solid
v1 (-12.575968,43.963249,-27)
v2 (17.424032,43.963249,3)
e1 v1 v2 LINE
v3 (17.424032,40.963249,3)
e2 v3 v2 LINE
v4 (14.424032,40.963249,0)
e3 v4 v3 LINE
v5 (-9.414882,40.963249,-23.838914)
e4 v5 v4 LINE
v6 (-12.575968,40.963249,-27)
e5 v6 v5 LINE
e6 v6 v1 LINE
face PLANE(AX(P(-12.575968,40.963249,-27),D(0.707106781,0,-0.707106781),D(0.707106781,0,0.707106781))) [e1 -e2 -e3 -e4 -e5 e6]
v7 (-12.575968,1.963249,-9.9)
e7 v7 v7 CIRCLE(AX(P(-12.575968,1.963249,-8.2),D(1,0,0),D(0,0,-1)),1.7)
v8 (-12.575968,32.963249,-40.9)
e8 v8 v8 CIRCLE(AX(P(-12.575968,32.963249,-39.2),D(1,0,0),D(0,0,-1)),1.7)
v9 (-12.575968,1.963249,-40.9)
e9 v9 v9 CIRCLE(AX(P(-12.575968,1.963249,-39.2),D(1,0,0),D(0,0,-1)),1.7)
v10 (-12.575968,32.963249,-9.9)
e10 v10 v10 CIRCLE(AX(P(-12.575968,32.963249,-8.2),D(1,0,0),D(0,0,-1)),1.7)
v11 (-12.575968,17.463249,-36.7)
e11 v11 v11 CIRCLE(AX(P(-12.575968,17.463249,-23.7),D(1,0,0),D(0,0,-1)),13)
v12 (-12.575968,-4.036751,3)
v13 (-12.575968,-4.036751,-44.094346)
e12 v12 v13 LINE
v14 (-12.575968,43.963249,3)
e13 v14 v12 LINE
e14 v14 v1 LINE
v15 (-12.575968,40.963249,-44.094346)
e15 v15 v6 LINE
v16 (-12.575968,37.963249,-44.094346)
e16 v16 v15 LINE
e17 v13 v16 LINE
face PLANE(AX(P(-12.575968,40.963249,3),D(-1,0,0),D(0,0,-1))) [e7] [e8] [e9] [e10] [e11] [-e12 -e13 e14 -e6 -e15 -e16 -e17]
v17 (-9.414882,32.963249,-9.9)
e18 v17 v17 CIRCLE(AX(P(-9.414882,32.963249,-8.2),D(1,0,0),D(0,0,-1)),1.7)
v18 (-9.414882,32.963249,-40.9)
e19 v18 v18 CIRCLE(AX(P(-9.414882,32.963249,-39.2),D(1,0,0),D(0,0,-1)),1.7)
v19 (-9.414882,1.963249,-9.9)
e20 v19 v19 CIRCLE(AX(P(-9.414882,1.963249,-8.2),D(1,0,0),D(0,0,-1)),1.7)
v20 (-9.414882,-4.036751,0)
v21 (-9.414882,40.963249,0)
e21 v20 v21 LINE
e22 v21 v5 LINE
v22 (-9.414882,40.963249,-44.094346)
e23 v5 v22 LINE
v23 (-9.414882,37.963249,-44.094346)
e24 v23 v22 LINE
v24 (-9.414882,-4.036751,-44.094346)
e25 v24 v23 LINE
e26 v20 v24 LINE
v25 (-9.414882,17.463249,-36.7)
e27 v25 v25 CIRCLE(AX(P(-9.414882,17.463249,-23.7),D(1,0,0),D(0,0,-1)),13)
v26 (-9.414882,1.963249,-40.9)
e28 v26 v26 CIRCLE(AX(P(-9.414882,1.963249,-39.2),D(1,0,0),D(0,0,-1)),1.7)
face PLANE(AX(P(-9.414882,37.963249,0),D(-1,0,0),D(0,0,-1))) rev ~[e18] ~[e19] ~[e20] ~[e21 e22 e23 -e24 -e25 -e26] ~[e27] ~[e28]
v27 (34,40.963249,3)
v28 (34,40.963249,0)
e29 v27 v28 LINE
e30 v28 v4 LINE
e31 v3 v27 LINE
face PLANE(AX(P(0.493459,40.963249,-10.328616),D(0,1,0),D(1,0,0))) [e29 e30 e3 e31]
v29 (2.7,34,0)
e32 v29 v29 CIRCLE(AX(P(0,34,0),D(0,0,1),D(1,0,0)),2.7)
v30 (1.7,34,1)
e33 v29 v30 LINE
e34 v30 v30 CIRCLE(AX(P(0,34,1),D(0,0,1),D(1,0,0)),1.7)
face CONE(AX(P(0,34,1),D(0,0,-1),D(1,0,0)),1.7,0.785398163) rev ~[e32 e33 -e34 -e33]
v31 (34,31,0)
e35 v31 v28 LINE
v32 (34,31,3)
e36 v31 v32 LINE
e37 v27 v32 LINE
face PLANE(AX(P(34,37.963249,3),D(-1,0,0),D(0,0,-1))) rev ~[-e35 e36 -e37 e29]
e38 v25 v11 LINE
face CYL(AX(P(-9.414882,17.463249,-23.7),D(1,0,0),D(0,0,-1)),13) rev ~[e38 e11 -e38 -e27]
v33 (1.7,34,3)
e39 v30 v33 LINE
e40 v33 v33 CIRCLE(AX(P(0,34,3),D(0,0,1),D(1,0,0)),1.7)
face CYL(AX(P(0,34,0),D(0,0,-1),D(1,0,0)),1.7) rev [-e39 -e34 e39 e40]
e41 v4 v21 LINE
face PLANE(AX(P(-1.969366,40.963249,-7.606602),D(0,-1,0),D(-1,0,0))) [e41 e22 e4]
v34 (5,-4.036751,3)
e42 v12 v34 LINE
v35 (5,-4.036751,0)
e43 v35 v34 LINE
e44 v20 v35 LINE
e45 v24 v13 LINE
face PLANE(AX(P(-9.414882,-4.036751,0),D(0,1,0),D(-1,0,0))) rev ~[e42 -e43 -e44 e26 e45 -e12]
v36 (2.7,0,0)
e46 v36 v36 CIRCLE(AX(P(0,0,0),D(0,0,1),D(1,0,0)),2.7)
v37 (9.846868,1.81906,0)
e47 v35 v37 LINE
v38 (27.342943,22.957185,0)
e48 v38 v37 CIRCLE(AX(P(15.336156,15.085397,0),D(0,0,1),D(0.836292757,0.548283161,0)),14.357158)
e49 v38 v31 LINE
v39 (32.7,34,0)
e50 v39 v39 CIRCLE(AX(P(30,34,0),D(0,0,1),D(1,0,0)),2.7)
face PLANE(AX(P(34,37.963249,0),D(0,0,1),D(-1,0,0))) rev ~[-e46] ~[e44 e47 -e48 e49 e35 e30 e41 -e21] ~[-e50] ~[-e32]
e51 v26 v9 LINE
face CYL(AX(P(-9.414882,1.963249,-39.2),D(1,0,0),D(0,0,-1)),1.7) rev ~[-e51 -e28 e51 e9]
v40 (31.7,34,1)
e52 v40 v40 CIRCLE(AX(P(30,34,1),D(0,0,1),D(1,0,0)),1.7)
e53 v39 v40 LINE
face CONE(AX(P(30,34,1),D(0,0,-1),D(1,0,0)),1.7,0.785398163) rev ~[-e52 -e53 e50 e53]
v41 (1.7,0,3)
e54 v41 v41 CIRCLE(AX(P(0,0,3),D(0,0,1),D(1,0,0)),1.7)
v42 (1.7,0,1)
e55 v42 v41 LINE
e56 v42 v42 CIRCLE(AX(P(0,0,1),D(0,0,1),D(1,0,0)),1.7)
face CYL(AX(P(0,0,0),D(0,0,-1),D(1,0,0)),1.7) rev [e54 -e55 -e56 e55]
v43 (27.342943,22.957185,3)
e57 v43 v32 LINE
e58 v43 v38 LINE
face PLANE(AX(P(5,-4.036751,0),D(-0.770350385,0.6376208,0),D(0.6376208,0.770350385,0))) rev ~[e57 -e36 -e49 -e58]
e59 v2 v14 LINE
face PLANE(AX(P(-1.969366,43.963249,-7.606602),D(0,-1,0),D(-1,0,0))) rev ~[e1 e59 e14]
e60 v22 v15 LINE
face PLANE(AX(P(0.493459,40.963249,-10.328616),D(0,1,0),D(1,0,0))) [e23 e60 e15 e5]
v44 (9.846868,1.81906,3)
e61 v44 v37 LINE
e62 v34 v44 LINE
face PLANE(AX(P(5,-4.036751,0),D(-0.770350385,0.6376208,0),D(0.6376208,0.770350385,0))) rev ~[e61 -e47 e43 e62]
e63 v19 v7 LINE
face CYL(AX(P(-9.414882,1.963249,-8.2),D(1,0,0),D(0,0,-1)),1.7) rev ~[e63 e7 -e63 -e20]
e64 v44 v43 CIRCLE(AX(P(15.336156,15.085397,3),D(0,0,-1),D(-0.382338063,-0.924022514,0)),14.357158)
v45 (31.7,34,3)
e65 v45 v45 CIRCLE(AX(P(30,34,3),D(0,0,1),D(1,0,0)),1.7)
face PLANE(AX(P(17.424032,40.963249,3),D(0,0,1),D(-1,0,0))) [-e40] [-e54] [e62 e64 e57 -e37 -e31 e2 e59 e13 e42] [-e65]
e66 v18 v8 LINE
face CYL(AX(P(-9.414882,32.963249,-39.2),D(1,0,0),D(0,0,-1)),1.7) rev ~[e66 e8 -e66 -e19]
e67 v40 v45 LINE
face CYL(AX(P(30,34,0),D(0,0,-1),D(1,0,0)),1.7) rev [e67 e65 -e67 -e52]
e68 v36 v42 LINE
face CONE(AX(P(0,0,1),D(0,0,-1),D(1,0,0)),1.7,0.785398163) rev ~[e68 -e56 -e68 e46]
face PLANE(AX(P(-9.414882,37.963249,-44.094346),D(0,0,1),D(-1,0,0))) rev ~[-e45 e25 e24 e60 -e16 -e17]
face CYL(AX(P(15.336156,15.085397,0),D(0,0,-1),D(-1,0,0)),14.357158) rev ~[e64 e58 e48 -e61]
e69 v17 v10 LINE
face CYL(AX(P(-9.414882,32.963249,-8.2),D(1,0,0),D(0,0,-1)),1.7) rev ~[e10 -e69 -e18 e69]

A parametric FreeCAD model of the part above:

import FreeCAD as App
import Part
import Sketcher


def edges_at(feature, points):
    """Names of the edges that pass closest to the given points."""
    edges = feature.Shape.Edges
    near = lambda p: min(range(len(edges)), key=lambda i: edges[i].distToShape(Part.Vertex(*p))[0])
    return sorted({f"Edge{near(p) + 1}" for p in points})


def add_polygon(sketch, points):
    """Adds a closed chain of lines whose ends are joined by coincident constraints."""
    first, n = sketch.GeometryCount, len(points)
    for a, b in zip(points, points[1:] + points[:1]):
        sketch.addGeometry(Part.LineSegment(App.Vector(*a, 0), App.Vector(*b, 0)), False)
    for i in range(n):
        sketch.addConstraint(Sketcher.Constraint("Coincident", first + i, 2, first + (i + 1) % n, 1))

doc = App.newDocument("Part")
body = doc.addObject("PartDesign::Body", "Body")

sketch1 = body.newObject("Sketcher::SketchObject", "Sketch")
sketch1.AttachmentSupport = (doc.getObject("XY_Plane"), [""])
sketch1.MapMode = "FlatFace"
add_polygon(sketch1, [(34, 31), (34, 38), (-12.6, 38), (-12.6, -4), (5, -4)])
sketch1.addGeometry(Part.Circle(App.Vector(0, 0, 0), App.Vector(0, 0, 1), 1.7), False)
sketch1.addGeometry(Part.Circle(App.Vector(0, 34, 0), App.Vector(0, 0, 1), 1.7), False)
sketch1.addGeometry(Part.Circle(App.Vector(30, 34, 0), App.Vector(0, 0, 1), 1.7), False)
sketch1.addConstraint(Sketcher.Constraint("Vertical", 0))
sketch1.addConstraint(Sketcher.Constraint("Horizontal", 1))
sketch1.addConstraint(Sketcher.Constraint("Vertical", 2))
sketch1.addConstraint(Sketcher.Constraint("Horizontal", 3))
sketch1.addConstraint(Sketcher.Constraint("Coincident", 5, 3, -1, 1))
sketch1.addConstraint(Sketcher.Constraint("Equal", 5, 6))
sketch1.addConstraint(Sketcher.Constraint("Equal", 6, 7))
sketch1.addConstraint(Sketcher.Constraint("PointOnObject", 6, 3, -2))
sketch1.addConstraint(Sketcher.Constraint("Horizontal", 6, 3, 7, 3))
sketch1.addConstraint(Sketcher.Constraint("Diameter", 5, 3.4))
sketch1.addConstraint(Sketcher.Constraint("DistanceY", 2, 2, 2, 1, 42.0))
sketch1.addConstraint(Sketcher.Constraint("DistanceY", -1, 1, 6, 3, 34.0))
sketch1.addConstraint(Sketcher.Constraint("DistanceX", -1, 1, 7, 3, 30.0))
sketch1.addConstraint(Sketcher.Constraint("DistanceX", -1, 1, 0, 2, 34.0))
sketch1.addConstraint(Sketcher.Constraint("DistanceX", -1, 1, 3, 2, 5.0))
sketch1.addConstraint(Sketcher.Constraint("DistanceY", -1, 1, 4, 2, 31.0))
sketch1.addConstraint(Sketcher.Constraint("DistanceX", 1, 2, 1, 1, 46.575968))
sketch1.addConstraint(Sketcher.Constraint("DistanceY", 0, 1, 0, 2, 6.963249))
pad1 = body.newObject("PartDesign::Pad", "Pad")
pad1.Profile = sketch1
pad1.Length = 3

sketch2 = body.newObject("Sketcher::SketchObject", "Sketch001")
sketch2.AttachmentSupport = (doc.getObject("XY_Plane"), [""])
sketch2.MapMode = "FlatFace"
add_polygon(sketch2, [(-9.4, 38), (-9.4, -4), (-12.6, -4), (-12.6, 38)])
sketch2.addConstraint(Sketcher.Constraint("Vertical", 0))
sketch2.addConstraint(Sketcher.Constraint("Horizontal", 1))
sketch2.addConstraint(Sketcher.Constraint("Vertical", 2))
sketch2.addConstraint(Sketcher.Constraint("Horizontal", 3))
sketch2.addConstraint(Sketcher.Constraint("DistanceY", 0, 2, 0, 1, 42.0))
sketch2.addConstraint(Sketcher.Constraint("DistanceX", 1, 2, 1, 1, 3.161086))
sketch2.addConstraint(Sketcher.Constraint("DistanceX", 0, 2, -1, 1, 9.414882))
sketch2.addConstraint(Sketcher.Constraint("DistanceY", 0, 2, -1, 1, 4.036751))
pad2 = body.newObject("PartDesign::Pad", "Pad001")
pad2.Profile = sketch2
pad2.Length = 45
pad2.Reversed = True

sketch3 = body.newObject("Sketcher::SketchObject", "Sketch002")
sketch3.AttachmentSupport = (doc.getObject("YZ_Plane"), [""])
sketch3.MapMode = "FlatFace"
sketch3.AttachmentOffset = App.Placement(App.Vector(0, 0, -9.414882), App.Rotation())
sketch3.addGeometry(Part.Circle(App.Vector(33, -8.2, 0), App.Vector(0, 0, 1), 1.7), False)
sketch3.addGeometry(Part.Circle(App.Vector(2, -8.2, 0), App.Vector(0, 0, 1), 1.7), False)
sketch3.addGeometry(Part.Circle(App.Vector(2, -39.2, 0), App.Vector(0, 0, 1), 1.7), False)
sketch3.addGeometry(Part.Circle(App.Vector(33, -39.2, 0), App.Vector(0, 0, 1), 1.7), False)
sketch3.addGeometry(Part.Circle(App.Vector(17.5, -23.7, 0), App.Vector(0, 0, 1), 13), False)
sketch3.addConstraint(Sketcher.Constraint("Equal", 0, 1))
sketch3.addConstraint(Sketcher.Constraint("Equal", 1, 2))
sketch3.addConstraint(Sketcher.Constraint("Equal", 2, 3))
sketch3.addConstraint(Sketcher.Constraint("Horizontal", 0, 3, 1, 3))
sketch3.addConstraint(Sketcher.Constraint("Horizontal", 2, 3, 3, 3))
sketch3.addConstraint(Sketcher.Constraint("Vertical", 1, 3, 2, 3))
sketch3.addConstraint(Sketcher.Constraint("Vertical", 0, 3, 3, 3))
sketch3.addConstraint(Sketcher.Constraint("Diameter", 4, 26.0))
sketch3.addConstraint(Sketcher.Constraint("Diameter", 0, 3.4))
sketch3.addConstraint(Sketcher.Constraint("DistanceX", 1, 3, 0, 3, 31.0))
sketch3.addConstraint(Sketcher.Constraint("DistanceY", 2, 3, 1, 3, 31.0))
sketch3.addConstraint(Sketcher.Constraint("DistanceY", 0, 3, -1, 1, 8.2))
sketch3.addConstraint(Sketcher.Constraint("DistanceY", 4, 3, -1, 1, 23.7))
sketch3.addConstraint(Sketcher.Constraint("DistanceX", 4, 3, 0, 3, 15.5))
sketch3.addConstraint(Sketcher.Constraint("DistanceX", -1, 1, 0, 3, 32.963249))
pocket1 = body.newObject("PartDesign::Pocket", "Pocket")
pocket1.Profile = sketch3
pocket1.Length = 45

sketch4 = body.newObject("Sketcher::SketchObject", "Sketch003")
sketch4.AttachmentSupport = (doc.getObject("XY_Plane"), [""])
sketch4.MapMode = "FlatFace"
sketch4.addGeometry(Part.Circle(App.Vector(15, 15, 0), App.Vector(0, 0, 1), 14), False)
sketch4.addConstraint(Sketcher.Constraint("Diameter", 0, 28.714316))
sketch4.addConstraint(Sketcher.Constraint("DistanceX", -1, 1, 0, 3, 15.336156))
sketch4.addConstraint(Sketcher.Constraint("DistanceY", -1, 1, 0, 3, 15.085397))
pocket2 = body.newObject("PartDesign::Pocket", "Pocket001")
pocket2.Profile = sketch4
pocket2.Length = 5
pocket2.Reversed = True

sketch5 = body.newObject("Sketcher::SketchObject", "Sketch004")
sketch5.AttachmentSupport = (doc.getObject("YZ_Plane"), [""])
sketch5.MapMode = "FlatFace"
sketch5.AttachmentOffset = App.Placement(App.Vector(0, 0, -9.414882), App.Rotation())
add_polygon(sketch5, [(38, -44.1), (-4.9, -44.1), (-4.9, -47.9), (38, -47.9)])
sketch5.addConstraint(Sketcher.Constraint("Horizontal", 0))
sketch5.addConstraint(Sketcher.Constraint("Vertical", 1))
sketch5.addConstraint(Sketcher.Constraint("Horizontal", 2))
sketch5.addConstraint(Sketcher.Constraint("Vertical", 3))
sketch5.addConstraint(Sketcher.Constraint("DistanceX", 0, 2, 0, 1, 42.889589))
sketch5.addConstraint(Sketcher.Constraint("DistanceY", 1, 2, 1, 1, 3.756135))
sketch5.addConstraint(Sketcher.Constraint("DistanceX", 0, 2, -1, 1, 4.92634))
sketch5.addConstraint(Sketcher.Constraint("DistanceY", 1, 2, -1, 1, 47.850481))
pocket3 = body.newObject("PartDesign::Pocket", "Pocket002")
pocket3.Profile = sketch5
pocket3.Length = 5
doc.recompute()

chamfer = body.newObject("PartDesign::Chamfer", "Chamfer")
chamfer.Base = (pocket3, edges_at(pocket3, [(28.3, 34, 0), (-1.7, 34, 0), (-1.7, 0, 0)]))
chamfer.Size = 1

sketch6 = body.newObject("Sketcher::SketchObject", "Sketch005")
sketch6.AttachmentSupport = (doc.getObject("XZ_Plane"), [""])
sketch6.MapMode = "FlatFace"
sketch6.AttachmentOffset = App.Placement(App.Vector(0, 0, -37.963249), App.Rotation())
add_polygon(sketch6, [(34, 3), (34, 0), (-9.4, 0), (-9.4, -44.1), (-12.6, -44.1), (-12.6, 3)])
sketch6.addConstraint(Sketcher.Constraint("Vertical", 0))
sketch6.addConstraint(Sketcher.Constraint("Horizontal", 1))
sketch6.addConstraint(Sketcher.Constraint("Vertical", 2))
sketch6.addConstraint(Sketcher.Constraint("Horizontal", 3))
sketch6.addConstraint(Sketcher.Constraint("Vertical", 4))
sketch6.addConstraint(Sketcher.Constraint("Horizontal", 5))
sketch6.addConstraint(Sketcher.Constraint("PointOnObject", 0, 2, -1))
sketch6.addConstraint(Sketcher.Constraint("DistanceY", 0, 2, 0, 1, 3.0))
sketch6.addConstraint(Sketcher.Constraint("DistanceX", -1, 1, 0, 2, 34.0))
sketch6.addConstraint(Sketcher.Constraint("DistanceX", 1, 2, 1, 1, 43.414882))
sketch6.addConstraint(Sketcher.Constraint("DistanceX", 5, 1, 5, 2, 46.575968))
sketch6.addConstraint(Sketcher.Constraint("DistanceY", 2, 2, 2, 1, 44.094346))
pad3 = body.newObject("PartDesign::Pad", "Pad002")
pad3.Profile = sketch6
pad3.Length = 3
pad3.Reversed = True

sketch7 = body.newObject("Sketcher::SketchObject", "Sketch006")
sketch7.AttachmentSupport = (doc.getObject("XZ_Plane"), [""])
sketch7.MapMode = "FlatFace"
sketch7.AttachmentOffset = App.Placement(App.Vector(0, 0, -40.963249), App.Rotation())
add_polygon(sketch7, [(-13, 3), (17, 3), (-13, -27)])
sketch7.addConstraint(Sketcher.Constraint("Horizontal", 0))
sketch7.addConstraint(Sketcher.Constraint("Vertical", 2))
sketch7.addConstraint(Sketcher.Constraint("Equal", 0, 2))
sketch7.addConstraint(Sketcher.Constraint("DistanceX", 0, 1, 0, 2, 30.0))
sketch7.addConstraint(Sketcher.Constraint("DistanceY", -1, 1, 0, 2, 3.0))
sketch7.addConstraint(Sketcher.Constraint("DistanceX", -1, 1, 0, 2, 17.424032))
pad4 = body.newObject("PartDesign::Pad", "Pad003")
pad4.Profile = sketch7
pad4.Length = 3
pad4.Reversed = True

doc.recompute()
